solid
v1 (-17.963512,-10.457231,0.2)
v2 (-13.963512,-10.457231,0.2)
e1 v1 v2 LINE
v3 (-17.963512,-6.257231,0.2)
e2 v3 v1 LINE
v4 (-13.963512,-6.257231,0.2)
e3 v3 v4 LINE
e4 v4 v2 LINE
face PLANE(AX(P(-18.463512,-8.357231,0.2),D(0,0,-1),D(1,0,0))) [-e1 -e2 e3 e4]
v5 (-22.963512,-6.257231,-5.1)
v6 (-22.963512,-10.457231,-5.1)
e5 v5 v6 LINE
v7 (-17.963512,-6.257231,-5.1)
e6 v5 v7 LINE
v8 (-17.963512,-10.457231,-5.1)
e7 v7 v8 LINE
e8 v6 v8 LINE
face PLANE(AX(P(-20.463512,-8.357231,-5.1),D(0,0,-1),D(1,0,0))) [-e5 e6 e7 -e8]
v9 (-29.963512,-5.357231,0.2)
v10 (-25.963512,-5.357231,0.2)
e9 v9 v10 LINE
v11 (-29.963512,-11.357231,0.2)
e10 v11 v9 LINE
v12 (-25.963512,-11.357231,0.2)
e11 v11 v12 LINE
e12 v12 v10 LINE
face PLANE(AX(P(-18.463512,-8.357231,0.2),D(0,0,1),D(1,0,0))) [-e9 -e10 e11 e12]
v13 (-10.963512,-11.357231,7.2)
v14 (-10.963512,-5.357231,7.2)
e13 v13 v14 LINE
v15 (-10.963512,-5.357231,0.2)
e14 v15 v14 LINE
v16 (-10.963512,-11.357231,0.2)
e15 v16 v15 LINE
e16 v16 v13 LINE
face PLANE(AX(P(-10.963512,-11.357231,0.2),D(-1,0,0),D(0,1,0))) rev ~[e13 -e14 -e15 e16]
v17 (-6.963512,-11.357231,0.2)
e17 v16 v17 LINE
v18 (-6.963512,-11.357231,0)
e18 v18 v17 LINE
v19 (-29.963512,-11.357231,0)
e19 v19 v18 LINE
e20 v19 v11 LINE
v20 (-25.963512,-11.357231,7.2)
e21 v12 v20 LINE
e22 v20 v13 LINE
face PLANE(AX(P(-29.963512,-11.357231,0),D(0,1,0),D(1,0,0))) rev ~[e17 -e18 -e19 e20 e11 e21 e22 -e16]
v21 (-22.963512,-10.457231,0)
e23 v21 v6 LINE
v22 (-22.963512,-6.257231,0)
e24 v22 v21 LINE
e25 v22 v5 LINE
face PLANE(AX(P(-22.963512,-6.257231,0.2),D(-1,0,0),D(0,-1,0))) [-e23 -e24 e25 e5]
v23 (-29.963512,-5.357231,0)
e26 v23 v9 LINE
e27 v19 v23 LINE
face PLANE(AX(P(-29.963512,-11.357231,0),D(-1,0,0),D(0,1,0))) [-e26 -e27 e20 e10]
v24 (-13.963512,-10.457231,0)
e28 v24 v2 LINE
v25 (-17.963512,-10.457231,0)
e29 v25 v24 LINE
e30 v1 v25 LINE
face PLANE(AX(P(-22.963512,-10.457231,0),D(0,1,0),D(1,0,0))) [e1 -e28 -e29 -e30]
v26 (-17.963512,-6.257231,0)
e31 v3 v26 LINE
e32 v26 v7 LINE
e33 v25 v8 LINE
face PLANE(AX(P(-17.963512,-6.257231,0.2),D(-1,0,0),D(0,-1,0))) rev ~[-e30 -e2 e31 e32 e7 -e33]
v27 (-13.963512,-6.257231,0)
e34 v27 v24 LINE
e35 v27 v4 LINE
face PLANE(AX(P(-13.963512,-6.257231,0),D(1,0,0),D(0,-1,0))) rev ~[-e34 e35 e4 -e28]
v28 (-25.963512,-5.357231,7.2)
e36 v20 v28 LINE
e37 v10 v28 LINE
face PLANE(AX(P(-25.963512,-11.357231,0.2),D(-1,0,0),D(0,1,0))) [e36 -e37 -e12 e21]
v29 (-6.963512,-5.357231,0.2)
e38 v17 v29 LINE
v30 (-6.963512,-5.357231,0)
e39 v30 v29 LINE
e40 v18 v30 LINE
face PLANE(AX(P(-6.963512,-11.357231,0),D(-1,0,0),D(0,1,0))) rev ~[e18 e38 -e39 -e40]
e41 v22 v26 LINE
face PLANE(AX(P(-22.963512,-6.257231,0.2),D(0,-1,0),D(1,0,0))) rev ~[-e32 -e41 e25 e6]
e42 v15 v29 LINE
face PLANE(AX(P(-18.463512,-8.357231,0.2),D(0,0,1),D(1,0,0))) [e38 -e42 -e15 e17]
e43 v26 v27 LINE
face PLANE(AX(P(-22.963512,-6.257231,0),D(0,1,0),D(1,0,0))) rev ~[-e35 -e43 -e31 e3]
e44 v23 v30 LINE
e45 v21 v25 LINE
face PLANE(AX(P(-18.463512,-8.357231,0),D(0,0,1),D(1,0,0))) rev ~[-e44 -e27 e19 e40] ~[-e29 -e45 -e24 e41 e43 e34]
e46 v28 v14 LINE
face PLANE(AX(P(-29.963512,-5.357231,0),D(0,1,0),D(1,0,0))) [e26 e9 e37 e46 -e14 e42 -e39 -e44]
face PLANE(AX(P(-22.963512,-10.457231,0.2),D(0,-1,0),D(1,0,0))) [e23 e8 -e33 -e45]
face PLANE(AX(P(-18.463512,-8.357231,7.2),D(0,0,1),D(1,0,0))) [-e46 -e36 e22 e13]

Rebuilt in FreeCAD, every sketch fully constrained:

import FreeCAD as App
import Part
import Sketcher
Q = App.Units.Quantity


def add_polygon(sketch, points):
    """Adds a closed chain of lines whose ends are joined by coincident constraints."""
    first, n = sketch.GeometryCount, len(points)
    for a, b in zip(points, points[1:] + points[:1]):
        sketch.addGeometry(Part.LineSegment(App.Vector(*a, 0), App.Vector(*b, 0)), False)
    for i in range(n):
        sketch.addConstraint(Sketcher.Constraint("Coincident", first + i, 2, first + (i + 1) % n, 1))

doc = App.newDocument("Part")
body = doc.addObject("PartDesign::Body", "Body")

sketch1 = body.newObject("Sketcher::SketchObject", "Sketch")
sketch1.AttachmentSupport = (doc.getObject("XY_Plane"), [""])
sketch1.MapMode = "FlatFace"
add_polygon(sketch1, [(-30, -5), (-30, -11), (-7, -11), (-7, -5)])
sketch1.addConstraint([
    Sketcher.Constraint("Vertical", 0),
    Sketcher.Constraint("Horizontal", 1),
    Sketcher.Constraint("Vertical", 2),
    Sketcher.Constraint("Horizontal", 3),
    Sketcher.Constraint("DistanceX", 1, 1, 1, 2, Q("23 mm")),
    Sketcher.Constraint("DistanceY", 0, 2, 0, 1, Q("6 mm")),
    Sketcher.Constraint("DistanceY", 0, 2, -1, 1, Q("11.357231 mm")),
    Sketcher.Constraint("DistanceX", 1, 2, -1, 1, Q("6.963512 mm")),
])
pad1 = body.newObject("PartDesign::Pad", "Pad")
pad1.Profile = sketch1
pad1.Length = 0.2

sketch2 = body.newObject("Sketcher::SketchObject", "Sketch001")
sketch2.AttachmentSupport = (doc.getObject("XY_Plane"), [""])
sketch2.MapMode = "FlatFace"
sketch2.AttachmentOffset = App.Placement(App.Vector(0, 0, 0.2), App.Rotation())
add_polygon(sketch2, [(-26, -5), (-26, -11), (-11, -11), (-11, -5)])
sketch2.addConstraint([
    Sketcher.Constraint("Vertical", 0),
    Sketcher.Constraint("Horizontal", 1),
    Sketcher.Constraint("Vertical", 2),
    Sketcher.Constraint("Horizontal", 3),
    Sketcher.Constraint("DistanceX", 1, 1, 1, 2, Q("15 mm")),
    Sketcher.Constraint("DistanceY", 0, 2, 0, 1, Q("6 mm")),
    Sketcher.Constraint("DistanceY", 0, 2, -1, 1, Q("11.357231 mm")),
    Sketcher.Constraint("DistanceX", 0, 2, -1, 1, Q("25.963512 mm")),
])
pad2 = body.newObject("PartDesign::Pad", "Pad001")
pad2.Profile = sketch2
pad2.Length = 7

sketch3 = body.newObject("Sketcher::SketchObject", "Sketch002")
sketch3.AttachmentSupport = (doc.getObject("XY_Plane"), [""])
sketch3.MapMode = "FlatFace"
add_polygon(sketch3, [(-23, -10.5), (-23, -6.3), (-14, -6.3), (-14, -10.5)])
sketch3.addConstraint([
    Sketcher.Constraint("Vertical", 0),
    Sketcher.Constraint("Horizontal", 1),
    Sketcher.Constraint("Vertical", 2),
    Sketcher.Constraint("Horizontal", 3),
    Sketcher.Constraint("DistanceX", 1, 1, 1, 2, Q("9 mm")),
    Sketcher.Constraint("DistanceY", 0, 1, 0, 2, Q("4.2 mm")),
    Sketcher.Constraint("DistanceY", 0, 2, -1, 1, Q("6.257231 mm")),
    Sketcher.Constraint("DistanceX", 0, 2, -1, 1, Q("22.963512 mm")),
])
pocket1 = body.newObject("PartDesign::Pocket", "Pocket")
pocket1.Profile = sketch3
pocket1.Length = 0.2
pocket1.Reversed = True

sketch4 = body.newObject("Sketcher::SketchObject", "Sketch003")
sketch4.AttachmentSupport = (doc.getObject("XY_Plane"), [""])
sketch4.MapMode = "FlatFace"
sketch4.AttachmentOffset = App.Placement(App.Vector(0, 0, 0.2), App.Rotation())
add_polygon(sketch4, [(-23, -10.5), (-23, -6.3), (-18, -6.3), (-18, -10.5)])
sketch4.addConstraint([
    Sketcher.Constraint("Vertical", 0),
    Sketcher.Constraint("Horizontal", 1),
    Sketcher.Constraint("Vertical", 2),
    Sketcher.Constraint("Horizontal", 3),
    Sketcher.Constraint("DistanceX", 1, 1, 1, 2, Q("5 mm")),
    Sketcher.Constraint("DistanceY", 0, 1, 0, 2, Q("4.2 mm")),
    Sketcher.Constraint("DistanceY", 0, 2, -1, 1, Q("6.257231 mm")),
    Sketcher.Constraint("DistanceX", 0, 2, -1, 1, Q("22.963512 mm")),
])
pad3 = body.newObject("PartDesign::Pad", "Pad002")
pad3.Profile = sketch4
pad3.Length = 5.3
pad3.Reversed = True

doc.recompute()
